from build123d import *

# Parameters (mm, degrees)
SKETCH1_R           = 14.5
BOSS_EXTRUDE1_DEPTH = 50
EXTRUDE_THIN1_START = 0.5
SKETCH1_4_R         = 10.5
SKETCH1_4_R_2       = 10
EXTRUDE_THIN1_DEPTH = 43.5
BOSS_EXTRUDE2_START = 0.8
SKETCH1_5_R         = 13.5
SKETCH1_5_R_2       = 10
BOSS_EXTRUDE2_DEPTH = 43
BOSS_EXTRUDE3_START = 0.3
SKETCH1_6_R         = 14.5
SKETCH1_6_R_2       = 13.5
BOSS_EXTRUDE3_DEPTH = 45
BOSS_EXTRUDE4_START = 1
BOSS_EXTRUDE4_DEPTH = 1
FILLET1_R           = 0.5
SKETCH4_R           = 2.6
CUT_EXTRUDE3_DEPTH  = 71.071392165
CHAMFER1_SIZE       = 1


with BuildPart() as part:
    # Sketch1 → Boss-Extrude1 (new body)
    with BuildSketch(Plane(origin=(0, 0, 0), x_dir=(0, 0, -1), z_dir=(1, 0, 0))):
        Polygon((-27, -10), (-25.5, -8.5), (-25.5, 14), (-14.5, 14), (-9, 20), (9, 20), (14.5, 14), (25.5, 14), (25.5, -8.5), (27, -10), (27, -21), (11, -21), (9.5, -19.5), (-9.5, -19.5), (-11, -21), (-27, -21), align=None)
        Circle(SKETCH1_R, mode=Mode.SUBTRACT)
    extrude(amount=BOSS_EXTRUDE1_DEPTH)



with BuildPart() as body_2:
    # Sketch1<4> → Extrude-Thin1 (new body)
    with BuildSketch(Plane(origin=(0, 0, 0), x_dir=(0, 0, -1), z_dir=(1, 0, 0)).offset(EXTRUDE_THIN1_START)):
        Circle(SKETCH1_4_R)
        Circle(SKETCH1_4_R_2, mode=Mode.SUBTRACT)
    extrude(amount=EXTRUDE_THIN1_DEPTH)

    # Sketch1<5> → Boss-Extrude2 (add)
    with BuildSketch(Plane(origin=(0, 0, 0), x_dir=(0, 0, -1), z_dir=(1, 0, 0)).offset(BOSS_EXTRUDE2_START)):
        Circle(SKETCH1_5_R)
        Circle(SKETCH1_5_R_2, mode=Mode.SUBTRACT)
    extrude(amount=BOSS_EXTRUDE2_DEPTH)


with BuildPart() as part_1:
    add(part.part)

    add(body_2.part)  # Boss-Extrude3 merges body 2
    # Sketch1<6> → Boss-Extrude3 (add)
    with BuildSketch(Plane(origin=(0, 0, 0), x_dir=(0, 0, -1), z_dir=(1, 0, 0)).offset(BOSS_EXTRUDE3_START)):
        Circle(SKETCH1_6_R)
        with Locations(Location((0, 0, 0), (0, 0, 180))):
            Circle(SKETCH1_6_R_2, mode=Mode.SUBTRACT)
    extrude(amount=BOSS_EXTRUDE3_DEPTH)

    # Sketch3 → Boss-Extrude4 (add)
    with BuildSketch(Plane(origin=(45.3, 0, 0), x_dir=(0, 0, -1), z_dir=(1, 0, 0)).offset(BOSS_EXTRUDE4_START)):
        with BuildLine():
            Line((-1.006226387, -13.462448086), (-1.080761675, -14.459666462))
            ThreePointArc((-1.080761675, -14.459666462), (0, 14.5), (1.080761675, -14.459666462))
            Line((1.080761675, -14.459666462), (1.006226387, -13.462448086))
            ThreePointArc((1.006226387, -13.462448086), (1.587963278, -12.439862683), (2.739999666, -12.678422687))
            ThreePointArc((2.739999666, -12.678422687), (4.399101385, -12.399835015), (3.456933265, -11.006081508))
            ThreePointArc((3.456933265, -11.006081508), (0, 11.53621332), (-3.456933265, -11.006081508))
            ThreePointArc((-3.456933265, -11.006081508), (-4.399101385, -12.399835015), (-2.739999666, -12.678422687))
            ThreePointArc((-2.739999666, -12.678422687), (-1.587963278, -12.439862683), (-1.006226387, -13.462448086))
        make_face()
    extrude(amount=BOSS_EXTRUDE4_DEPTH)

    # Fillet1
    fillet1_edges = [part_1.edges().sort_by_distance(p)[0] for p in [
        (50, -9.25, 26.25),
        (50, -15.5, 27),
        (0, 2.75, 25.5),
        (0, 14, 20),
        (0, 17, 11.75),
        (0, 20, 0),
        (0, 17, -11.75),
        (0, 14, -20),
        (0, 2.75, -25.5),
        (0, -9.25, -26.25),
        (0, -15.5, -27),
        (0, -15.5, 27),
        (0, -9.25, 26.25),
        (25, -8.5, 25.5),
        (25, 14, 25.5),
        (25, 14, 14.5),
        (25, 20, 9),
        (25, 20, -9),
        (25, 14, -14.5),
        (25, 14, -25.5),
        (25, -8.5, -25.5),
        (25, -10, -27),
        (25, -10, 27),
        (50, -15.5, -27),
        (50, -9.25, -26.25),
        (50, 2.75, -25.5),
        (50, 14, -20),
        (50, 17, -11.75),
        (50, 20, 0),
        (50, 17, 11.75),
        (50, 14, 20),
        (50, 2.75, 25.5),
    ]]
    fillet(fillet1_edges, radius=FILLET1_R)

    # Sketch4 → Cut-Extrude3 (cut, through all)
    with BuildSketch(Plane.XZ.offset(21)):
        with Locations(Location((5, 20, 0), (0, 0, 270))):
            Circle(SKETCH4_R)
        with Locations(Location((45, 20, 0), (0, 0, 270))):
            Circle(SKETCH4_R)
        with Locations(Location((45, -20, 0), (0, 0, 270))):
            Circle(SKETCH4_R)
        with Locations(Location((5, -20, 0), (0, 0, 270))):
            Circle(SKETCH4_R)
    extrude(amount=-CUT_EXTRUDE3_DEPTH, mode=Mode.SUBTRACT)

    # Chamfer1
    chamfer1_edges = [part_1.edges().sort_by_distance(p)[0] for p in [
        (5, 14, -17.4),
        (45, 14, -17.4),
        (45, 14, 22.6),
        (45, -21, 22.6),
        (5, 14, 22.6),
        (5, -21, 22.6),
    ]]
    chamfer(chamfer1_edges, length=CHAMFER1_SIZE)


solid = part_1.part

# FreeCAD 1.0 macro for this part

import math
import FreeCAD as App
import Part
import Sketcher
from FreeCAD import Vector
Q = App.Units.Quantity


def edges_at(feature, points):
    """Names of the edges that pass closest to the given points."""
    edges = feature.Shape.Edges
    near = lambda p: min(range(len(edges)), key=lambda i: edges[i].distToShape(Part.Vertex(*p))[0])
    return sorted({f"Edge{near(p) + 1}" for p in points})

doc = App.newDocument("Part")
body = doc.addObject("PartDesign::Body", "Body")

# Sketch on YZ plane
sketch1 = body.newObject("Sketcher::SketchObject", "Sketch")
sketch1.AttachmentSupport = (doc.getObject("YZ_Plane"), [""])
sketch1.MapMode = "FlatFace"
sketch1.addGeometry(Part.LineSegment(Vector(-8.5, 25.5, 0), Vector(-10, 27, 0)), False)
sketch1.addGeometry(Part.LineSegment(Vector(-10, 27, 0), Vector(-21, 27, 0)), False)
sketch1.addGeometry(Part.LineSegment(Vector(-21, 27, 0), Vector(-21, 11, 0)), False)
sketch1.addGeometry(Part.LineSegment(Vector(-21, 11, 0), Vector(-19.5, 9.5, 0)), False)
sketch1.addGeometry(Part.LineSegment(Vector(-19.5, 9.5, 0), Vector(-19.5, -9.5, 0)), False)
sketch1.addGeometry(Part.LineSegment(Vector(-19.5, -9.5, 0), Vector(-21, -11, 0)), False)
sketch1.addGeometry(Part.LineSegment(Vector(-21, -11, 0), Vector(-21, -27, 0)), False)
sketch1.addGeometry(Part.LineSegment(Vector(-21, -27, 0), Vector(-10, -27, 0)), False)
sketch1.addGeometry(Part.LineSegment(Vector(-10, -27, 0), Vector(-8.5, -25.5, 0)), False)
sketch1.addGeometry(Part.LineSegment(Vector(-8.5, -25.5, 0), Vector(14, -25.5, 0)), False)
sketch1.addGeometry(Part.LineSegment(Vector(14, -25.5, 0), Vector(14, -14.5, 0)), False)
sketch1.addGeometry(Part.LineSegment(Vector(14, -14.5, 0), Vector(20, -9, 0)), False)
sketch1.addGeometry(Part.LineSegment(Vector(20, -9, 0), Vector(20, 9, 0)), False)
sketch1.addGeometry(Part.LineSegment(Vector(20, 9, 0), Vector(14, 14.5, 0)), False)
sketch1.addGeometry(Part.LineSegment(Vector(14, 14.5, 0), Vector(14, 25.5, 0)), False)
sketch1.addGeometry(Part.LineSegment(Vector(14, 25.5, 0), Vector(-8.5, 25.5, 0)), False)
sketch1.addGeometry(Part.Circle(Vector(0, 0, 0), Vector(0, 0, 1), 14.5), False)
sketch1.addConstraint(Sketcher.Constraint("Coincident", 0, 2, 1, 1))
sketch1.addConstraint(Sketcher.Constraint("Coincident", 1, 2, 2, 1))
sketch1.addConstraint(Sketcher.Constraint("Coincident", 2, 2, 3, 1))
sketch1.addConstraint(Sketcher.Constraint("Coincident", 3, 2, 4, 1))
sketch1.addConstraint(Sketcher.Constraint("Coincident", 4, 2, 5, 1))
sketch1.addConstraint(Sketcher.Constraint("Coincident", 5, 2, 6, 1))
sketch1.addConstraint(Sketcher.Constraint("Coincident", 6, 2, 7, 1))
sketch1.addConstraint(Sketcher.Constraint("Coincident", 7, 2, 8, 1))
sketch1.addConstraint(Sketcher.Constraint("Coincident", 8, 2, 9, 1))
sketch1.addConstraint(Sketcher.Constraint("Coincident", 9, 2, 10, 1))
sketch1.addConstraint(Sketcher.Constraint("Coincident", 10, 2, 11, 1))
sketch1.addConstraint(Sketcher.Constraint("Coincident", 11, 2, 12, 1))
sketch1.addConstraint(Sketcher.Constraint("Coincident", 12, 2, 13, 1))
sketch1.addConstraint(Sketcher.Constraint("Coincident", 13, 2, 14, 1))
sketch1.addConstraint(Sketcher.Constraint("Coincident", 14, 2, 15, 1))
sketch1.addConstraint(Sketcher.Constraint("Coincident", 15, 2, 0, 1))
sketch1.addConstraint(Sketcher.Constraint("Horizontal", 1))
sketch1.addConstraint(Sketcher.Constraint("Vertical", 2))
sketch1.addConstraint(Sketcher.Constraint("Vertical", 4))
sketch1.addConstraint(Sketcher.Constraint("Vertical", 6))
sketch1.addConstraint(Sketcher.Constraint("Horizontal", 7))
sketch1.addConstraint(Sketcher.Constraint("Horizontal", 9))
sketch1.addConstraint(Sketcher.Constraint("Vertical", 10))
sketch1.addConstraint(Sketcher.Constraint("Vertical", 12))
sketch1.addConstraint(Sketcher.Constraint("Vertical", 14))
sketch1.addConstraint(Sketcher.Constraint("Horizontal", 15))
sketch1.addConstraint(Sketcher.Constraint("Coincident", 16, 3, -1, 1))
sketch1.addConstraint(Sketcher.Constraint("Symmetric", 2, 2, 5, 2, -1))
sketch1.addConstraint(Sketcher.Constraint("Symmetric", 0, 2, 7, 2, -1))
sketch1.addConstraint(Sketcher.Constraint("Symmetric", 10, 2, 13, 2, -1))
sketch1.addConstraint(Sketcher.Constraint("Symmetric", 8, 2, 15, 2, -1))
sketch1.addConstraint(Sketcher.Constraint("Parallel", 0, 3))
sketch1.addConstraint(Sketcher.Constraint("Perpendicular", 3, 5))
sketch1.addConstraint(Sketcher.Constraint("Parallel", 5, 8))
sketch1.addConstraint(Sketcher.Constraint("Equal", 7, 10))
sketch1.addConstraint(Sketcher.Constraint("Equal", 0, 3))
sketch1.addConstraint(Sketcher.Constraint("Equal", 11, 13))
sketch1.addConstraint(Sketcher.Constraint("Diameter", 16, Q("29 mm")))
sketch1.addConstraint(Sketcher.Constraint("DistanceX", 1, 2, 1, 1, Q("11 mm")))
sketch1.addConstraint(Sketcher.Constraint("DistanceY", 2, 2, 2, 1, Q("16 mm")))
sketch1.addConstraint(Sketcher.Constraint("DistanceY", 4, 2, 4, 1, Q("19 mm")))
sketch1.addConstraint(Sketcher.Constraint("DistanceY", 12, 1, 12, 2, Q("18 mm")))
sketch1.addConstraint(Sketcher.Constraint("DistanceX", 9, 1, 9, 2, Q("22.5 mm")))
sketch1.addConstraint(Sketcher.Constraint("DistanceX", 0, 2, -1, 1, Q("10 mm")))
sketch1.addConstraint(Sketcher.Constraint("DistanceY", -1, 1, 0, 2, Q("27 mm")))
sketch1.addConstraint(Sketcher.Constraint("DistanceX", -1, 1, 11, 2, Q("20 mm")))
pad1 = body.newObject("PartDesign::Pad", "Pad")
pad1.Profile = sketch1
pad1.Length = 50
body2 = doc.addObject("PartDesign::Body", "Body001")

# Sketch on YZ plane
sketch2 = body2.newObject("Sketcher::SketchObject", "Sketch001")
sketch2.AttachmentSupport = (doc.getObject("YZ_Plane001"), [""])
sketch2.MapMode = "FlatFace"
sketch2.AttachmentOffset = App.Placement(Vector(0, 0, 0.5), App.Rotation())
sketch2.addGeometry(Part.Circle(Vector(0, 0, 0), Vector(0, 0, 1), 10.5), False)
sketch2.addGeometry(Part.Circle(Vector(0, 0, 0), Vector(0, 0, 1), 10), False)
sketch2.addConstraint(Sketcher.Constraint("Coincident", 0, 3, -1, 1))
sketch2.addConstraint(Sketcher.Constraint("Coincident", 1, 3, -1, 1))
sketch2.addConstraint(Sketcher.Constraint("Diameter", 0, Q("21 mm")))
sketch2.addConstraint(Sketcher.Constraint("Diameter", 1, Q("20 mm")))
pad2 = body2.newObject("PartDesign::Pad", "Pad001")
pad2.Profile = sketch2
pad2.Length = 43.5

# Sketch on YZ plane
sketch3 = body2.newObject("Sketcher::SketchObject", "Sketch002")
sketch3.AttachmentSupport = (doc.getObject("YZ_Plane001"), [""])
sketch3.MapMode = "FlatFace"
sketch3.AttachmentOffset = App.Placement(Vector(0, 0, 0.8), App.Rotation())
sketch3.addGeometry(Part.Circle(Vector(0, 0, 0), Vector(0, 0, 1), 13.5), False)
sketch3.addGeometry(Part.Circle(Vector(0, 0, 0), Vector(0, 0, 1), 10), False)
sketch3.addConstraint(Sketcher.Constraint("Coincident", 0, 3, -1, 1))
sketch3.addConstraint(Sketcher.Constraint("Coincident", 1, 3, -1, 1))
sketch3.addConstraint(Sketcher.Constraint("Diameter", 0, Q("27 mm")))
sketch3.addConstraint(Sketcher.Constraint("Diameter", 1, Q("20 mm")))
pad3 = body2.newObject("PartDesign::Pad", "Pad002")
pad3.Profile = sketch3
pad3.Length = 43
body.AllowCompound = True
doc.recompute()

boolean = body.newObject("PartDesign::Boolean", "Boolean")
boolean.Type = "Fuse"
boolean.addObjects([body2])

# Sketch on YZ plane
sketch4 = body.newObject("Sketcher::SketchObject", "Sketch003")
sketch4.AttachmentSupport = (doc.getObject("YZ_Plane"), [""])
sketch4.MapMode = "FlatFace"
sketch4.AttachmentOffset = App.Placement(Vector(0, 0, 0.3), App.Rotation())
sketch4.addGeometry(Part.Circle(Vector(0, 0, 0), Vector(0, 0, 1), 14.5), False)
sketch4.addGeometry(Part.Circle(Vector(0, 0, 0), Vector(0, 0, 1), 13.5), False)
sketch4.addConstraint(Sketcher.Constraint("Coincident", 0, 3, -1, 1))
sketch4.addConstraint(Sketcher.Constraint("Coincident", 1, 3, -1, 1))
sketch4.addConstraint(Sketcher.Constraint("Diameter", 0, Q("29 mm")))
sketch4.addConstraint(Sketcher.Constraint("Diameter", 1, Q("27 mm")))
pad4 = body.newObject("PartDesign::Pad", "Pad003")
pad4.Profile = sketch4
pad4.Length = 45

# Sketch on YZ plane
sketch5 = body.newObject("Sketcher::SketchObject", "Sketch004")
sketch5.AttachmentSupport = (doc.getObject("YZ_Plane"), [""])
sketch5.MapMode = "FlatFace"
sketch5.AttachmentOffset = App.Placement(Vector(0, 0, 46.3), App.Rotation())
sketch5.addGeometry(Part.LineSegment(Vector(-14.459666, 1.080762, 0), Vector(-13.462448, 1.006226, 0)), False)
sketch5.addGeometry(Part.ArcOfCircle(Part.Circle(Vector(-13.35103, 2, 0), Vector(0, 0, 1), 1), math.radians(-96.397073), math.radians(47.731387)), False)
sketch5.addGeometry(Part.ArcOfCircle(Part.Circle(Vector(-12.005815, 3.479999, 0), Vector(0, 0, 1), 1), math.radians(-1.321706), math.radians(227.731387)), False)
sketch5.addGeometry(Part.ArcOfCircle(Part.Circle(Vector(0, 0, 0), Vector(0, 0, 1), 11.536213), math.radians(-162.562861), math.radians(162.562861)), False)
sketch5.addGeometry(Part.ArcOfCircle(Part.Circle(Vector(-12.005815, -3.479999, 0), Vector(0, 0, 1), 1), math.radians(132.268613), math.radians(361.321706)), False)
sketch5.addGeometry(Part.ArcOfCircle(Part.Circle(Vector(-13.35103, -2, 0), Vector(0, 0, 1), 1), math.radians(-47.731387), math.radians(96.397073)), False)
sketch5.addGeometry(Part.LineSegment(Vector(-13.462448, -1.006226, 0), Vector(-14.459666, -1.080762, 0)), False)
sketch5.addGeometry(Part.ArcOfCircle(Part.Circle(Vector(0, 0, 0), Vector(0, 0, 1), 14.5), math.radians(-175.725478), math.radians(175.725478)), False)
sketch5.addConstraint(Sketcher.Constraint("Coincident", 0, 2, 1, 1))
sketch5.addConstraint(Sketcher.Constraint("Tangent", 1, 2, 2, 2))
sketch5.addConstraint(Sketcher.Constraint("Coincident", 2, 1, 3, 2))
sketch5.addConstraint(Sketcher.Constraint("Coincident", 3, 1, 4, 2))
sketch5.addConstraint(Sketcher.Constraint("Tangent", 4, 1, 5, 1))
sketch5.addConstraint(Sketcher.Constraint("Coincident", 5, 2, 6, 1))
sketch5.addConstraint(Sketcher.Constraint("Coincident", 6, 2, 7, 1))
sketch5.addConstraint(Sketcher.Constraint("Coincident", 7, 2, 0, 1))
sketch5.addConstraint(Sketcher.Constraint("Coincident", 3, 3, -1, 1))
sketch5.addConstraint(Sketcher.Constraint("Coincident", 7, 3, -1, 1))
sketch5.addConstraint(Sketcher.Constraint("Equal", 1, 2))
sketch5.addConstraint(Sketcher.Constraint("Equal", 2, 4))
sketch5.addConstraint(Sketcher.Constraint("Equal", 4, 5))
sketch5.addConstraint(Sketcher.Constraint("Symmetric", 2, 3, 4, 3, -1))
sketch5.addConstraint(Sketcher.Constraint("Symmetric", 0, 2, 5, 2, -1))
sketch5.addConstraint(Sketcher.Constraint("Vertical", 6, 2, 7, 2))
sketch5.addConstraint(Sketcher.Constraint("Radius", 1, Q("1 mm")))
sketch5.addConstraint(Sketcher.Constraint("Radius", 7, Q("14.5 mm")))
sketch5.addConstraint(Sketcher.Constraint("Distance", 0, Q("1 mm")))
sketch5.addConstraint(Sketcher.Constraint("DistanceY", -1, 1, 1, 3, Q("2 mm")))
sketch5.addConstraint(Sketcher.Constraint("DistanceY", -1, 1, 2, 3, Q("3.479999 mm")))
sketch5.addConstraint(Sketcher.Constraint("Radius", 3, Q("11.536213 mm")))
sketch5.addConstraint(Sketcher.Constraint("DistanceX", 1, 3, -1, 1, Q("13.35103 mm")))
sketch5.addConstraint(Sketcher.Constraint("DistanceY", 6, 2, -1, 1, Q("1.080762 mm")))
pad5 = body.newObject("PartDesign::Pad", "Pad004")
pad5.Profile = sketch5
pad5.Length = 1
doc.recompute()

fillet = body.newObject("PartDesign::Fillet", "Fillet")
fillet.Base = (pad5, edges_at(pad5, [
    (50, -9.25, 26.25),
    (50, -15.5, 27),
    (0, 2.75, 25.5),
    (0, 14, 20),
    (0, 17, 11.75),
    (0, 20, 0),
    (0, 17, -11.75),
    (0, 14, -20),
    (0, 2.75, -25.5),
    (0, -9.25, -26.25),
    (0, -15.5, -27),
    (0, -15.5, 27),
    (0, -9.25, 26.25),
    (25, -8.5, 25.5),
    (25, 14, 25.5),
    (25, 14, 14.5),
    (25, 20, 9),
    (25, 20, -9),
    (25, 14, -14.5),
    (25, 14, -25.5),
    (25, -8.5, -25.5),
    (25, -10, -27),
    (25, -10, 27),
    (50, -15.5, -27),
    (50, -9.25, -26.25),
    (50, 2.75, -25.5),
    (50, 14, -20),
    (50, 17, -11.75),
    (50, 20, 0),
    (50, 17, 11.75),
    (50, 14, 20),
    (50, 2.75, 25.5),
]))
fillet.Radius = 0.5

# Sketch on XZ plane
sketch6 = body.newObject("Sketcher::SketchObject", "Sketch005")
sketch6.AttachmentSupport = (doc.getObject("XZ_Plane"), [""])
sketch6.MapMode = "FlatFace"
sketch6.AttachmentOffset = App.Placement(Vector(0, 0, 21), App.Rotation())
sketch6.addGeometry(Part.Circle(Vector(5, 20, 0), Vector(0, 0, 1), 2.6), False)
sketch6.addGeometry(Part.Circle(Vector(45, 20, 0), Vector(0, 0, 1), 2.6), False)
sketch6.addGeometry(Part.Circle(Vector(45, -20, 0), Vector(0, 0, 1), 2.6), False)
sketch6.addGeometry(Part.Circle(Vector(5, -20, 0), Vector(0, 0, 1), 2.6), False)
sketch6.addConstraint(Sketcher.Constraint("Equal", 0, 1))
sketch6.addConstraint(Sketcher.Constraint("Equal", 1, 2))
sketch6.addConstraint(Sketcher.Constraint("Equal", 2, 3))
sketch6.addConstraint(Sketcher.Constraint("Symmetric", 1, 3, 2, 3, -1))
sketch6.addConstraint(Sketcher.Constraint("Symmetric", 0, 3, 3, 3, -1))
sketch6.addConstraint(Sketcher.Constraint("Horizontal", 0, 3, 1, 3))
sketch6.addConstraint(Sketcher.Constraint("Diameter", 0, Q("5.2 mm")))
sketch6.addConstraint(Sketcher.Constraint("DistanceX", -1, 1, 0, 3, Q("5 mm")))
sketch6.addConstraint(Sketcher.Constraint("DistanceY", -1, 1, 0, 3, Q("20 mm")))
sketch6.addConstraint(Sketcher.Constraint("DistanceX", -1, 1, 1, 3, Q("45 mm")))
pocket1 = body.newObject("PartDesign::Pocket", "Pocket")
pocket1.Profile = sketch6
pocket1.Type = "ThroughAll"
doc.recompute()

chamfer = body.newObject("PartDesign::Chamfer", "Chamfer")
chamfer.Base = (pocket1, edges_at(pocket1, [
    (5, 14, -17.4),
    (45, 14, -17.4),
    (45, 14, 22.6),
    (45, -21, 22.6),
    (5, 14, 22.6),
    (5, -21, 22.6),
]))
chamfer.Size = 1

doc.recompute()
